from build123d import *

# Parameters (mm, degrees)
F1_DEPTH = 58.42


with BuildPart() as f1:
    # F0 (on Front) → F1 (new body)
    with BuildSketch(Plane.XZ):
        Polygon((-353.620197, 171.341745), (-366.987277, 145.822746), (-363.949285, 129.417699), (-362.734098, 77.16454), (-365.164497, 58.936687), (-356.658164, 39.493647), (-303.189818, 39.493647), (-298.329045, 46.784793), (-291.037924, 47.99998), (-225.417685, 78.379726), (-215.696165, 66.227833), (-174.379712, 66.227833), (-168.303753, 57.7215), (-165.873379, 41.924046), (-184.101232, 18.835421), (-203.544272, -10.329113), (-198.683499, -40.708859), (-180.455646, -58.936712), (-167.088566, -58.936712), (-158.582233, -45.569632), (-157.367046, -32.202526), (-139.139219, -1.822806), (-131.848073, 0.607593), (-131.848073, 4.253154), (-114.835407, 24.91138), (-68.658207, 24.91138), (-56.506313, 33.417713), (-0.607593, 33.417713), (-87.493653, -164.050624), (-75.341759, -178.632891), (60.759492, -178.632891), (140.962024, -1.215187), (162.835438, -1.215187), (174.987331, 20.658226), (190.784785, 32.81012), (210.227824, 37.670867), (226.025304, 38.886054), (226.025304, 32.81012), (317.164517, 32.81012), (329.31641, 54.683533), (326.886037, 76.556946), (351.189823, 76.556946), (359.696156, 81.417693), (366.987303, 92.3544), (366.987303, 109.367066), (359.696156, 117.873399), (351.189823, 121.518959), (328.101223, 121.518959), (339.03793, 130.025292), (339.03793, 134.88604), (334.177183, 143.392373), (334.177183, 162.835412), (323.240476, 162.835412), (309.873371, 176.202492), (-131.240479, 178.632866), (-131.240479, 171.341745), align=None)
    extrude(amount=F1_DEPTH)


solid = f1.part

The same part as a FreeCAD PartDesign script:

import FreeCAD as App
import Part
import Sketcher
from FreeCAD import Vector
Q = App.Units.Quantity


def add_polygon(sketch, points):
    """Adds a closed chain of lines whose ends are joined by coincident constraints."""
    first, n = sketch.GeometryCount, len(points)
    for a, b in zip(points, points[1:] + points[:1]):
        sketch.addGeometry(Part.LineSegment(App.Vector(*a, 0), App.Vector(*b, 0)), False)
    for i in range(n):
        sketch.addConstraint(Sketcher.Constraint("Coincident", first + i, 2, first + (i + 1) % n, 1))

doc = App.newDocument("Part")
body = doc.addObject("PartDesign::Body", "Body")

# Sketch on XZ plane
sketch1 = body.newObject("Sketcher::SketchObject", "Sketch")
sketch1.AttachmentSupport = (doc.getObject("XZ_Plane"), [""])
sketch1.MapMode = "FlatFace"
add_polygon(sketch1, [(-353.620197, 171.341745), (-366.987277, 145.822746), (-363.949285, 129.417699), (-362.734098, 77.16454), (-365.164497, 58.936687), (-356.658164, 39.493647), (-303.189818, 39.493647), (-298.329045, 46.784793), (-291.037924, 47.99998), (-225.417685, 78.379726), (-215.696165, 66.227833), (-174.379712, 66.227833), (-168.303753, 57.7215), (-165.873379, 41.924046), (-184.101232, 18.835421), (-203.544272, -10.329113), (-198.683499, -40.708859), (-180.455646, -58.936712), (-167.088566, -58.936712), (-158.582233, -45.569632), (-157.367046, -32.202526), (-139.139219, -1.822806), (-131.848073, 0.607593), (-131.848073, 4.253154), (-114.835407, 24.91138), (-68.658207, 24.91138), (-56.506313, 33.417713), (-0.607593, 33.417713), (-87.493653, -164.050624), (-75.341759, -178.632891), (60.759492, -178.632891), (140.962024, -1.215187), (162.835438, -1.215187), (174.987331, 20.658226), (190.784785, 32.81012), (210.227824, 37.670867), (226.025304, 38.886054), (226.025304, 32.81012), (317.164517, 32.81012), (329.31641, 54.683533), (326.886037, 76.556946), (351.189823, 76.556946), (359.696156, 81.417693), (366.987303, 92.3544), (366.987303, 109.367066), (359.696156, 117.873399), (351.189823, 121.518959), (328.101223, 121.518959), (339.03793, 130.025292), (339.03793, 134.88604), (334.177183, 143.392373), (334.177183, 162.835412), (323.240476, 162.835412), (309.873371, 176.202492), (-131.240479, 178.632866), (-131.240479, 171.341745)])  # lines 0-55
sketch1.addConstraint([
    Sketcher.Constraint("Horizontal", 5),
    Sketcher.Constraint("Horizontal", 10),
    Sketcher.Constraint("Horizontal", 17),
    Sketcher.Constraint("Vertical", 22),
    Sketcher.Constraint("Horizontal", 24),
    Sketcher.Constraint("Horizontal", 26),
    Sketcher.Constraint("Horizontal", 29),
    Sketcher.Constraint("Horizontal", 31),
    Sketcher.Constraint("Vertical", 36),
    Sketcher.Constraint("Horizontal", 37),
    Sketcher.Constraint("Horizontal", 40),
    Sketcher.Constraint("Vertical", 43),
    Sketcher.Constraint("Horizontal", 46),
    Sketcher.Constraint("Vertical", 48),
    Sketcher.Constraint("Vertical", 50),
    Sketcher.Constraint("Horizontal", 51),
    Sketcher.Constraint("Vertical", 54),
    Sketcher.Constraint("Horizontal", 55),
    Sketcher.Constraint("Parallel", 6, 14),
    Sketcher.Constraint("Parallel", 32, 38),
    Sketcher.Constraint("Parallel", 14, 42),
    Sketcher.Constraint("Perpendicular", 41, 49),
    Sketcher.Constraint("Parallel", 16, 52),
    Sketcher.Constraint("Horizontal", 33, 2, 36, 2),
    Sketcher.Constraint("Vertical", 41, 2, 44, 2),
    Sketcher.Constraint("Vertical", 40, 2, 45, 2),
    Sketcher.Constraint("Equal", 32, 38),
    Sketcher.Constraint("Equal", 41, 49),
    Sketcher.Constraint("Angle", 16, Q("-45 deg")),
    Sketcher.Constraint("DistanceX", 24, 1, 24, 2, Q("1.818 in")),
    Sketcher.Constraint("DistanceX", 46, 2, 46, 1, Q("0.909 in")),
    Sketcher.Constraint("DistanceY", -1, 1, 42, 2, Q("3.636 in")),
    Sketcher.Constraint("DistanceX", 16, 2, 19, 2, Q("0.909 in")),
    Sketcher.Constraint("DistanceX", 30, 2, 34, 2, Q("2.727 in")),
    Sketcher.Constraint("DistanceY", 47, 2, 52, 2, Q("1.818 in")),
    Sketcher.Constraint("DistanceY", -1, 1, 11, 2, Q("2.2725 in")),
    Sketcher.Constraint("DistanceY", 30, 2, 26, 2, Q("1.3635 in")),
    Sketcher.Constraint("DistanceX", 12, 2, 53, 2, Q("1.3635 in")),
    Sketcher.Constraint("DistanceX", 3, 2, 55, 2, Q("0.4545 in")),
    Sketcher.Constraint("DistanceX", 17, 1, 17, 2, 13.36708),
    Sketcher.Constraint("DistanceX", 26, 1, 26, 2, 55.89872),
    Sketcher.Constraint("DistanceX", 29, 1, 29, 2, 136.101251),
    Sketcher.Constraint("DistanceX", 55, 2, 55, 1, 222.379718),
    Sketcher.Constraint("DistanceY", 22, 1, 22, 2, 3.645561),
    Sketcher.Constraint("DistanceY", 48, 1, 48, 2, 4.860748),
    Sketcher.Constraint("DistanceY", 50, 1, 50, 2, 19.443039),
    Sketcher.Constraint("DistanceY", 54, 2, 54, 1, 7.291121),
    Sketcher.Constraint("DistanceY", -1, 1, 1, 2, 129.417699),
    Sketcher.Constraint("DistanceX", 2, 2, -1, 1, 362.734098),
    Sketcher.Constraint("DistanceX", 15, 2, -1, 1, 198.683499),
    Sketcher.Constraint("DistanceY", -1, 1, 44, 2, 117.873399),
    Sketcher.Constraint("DistanceX", 3, 2, 2, 2, 2.430399),
    Sketcher.Constraint("DistanceY", 4, 2, 0, 2, 106.329099),
    Sketcher.Constraint("DistanceX", 4, 2, 9, 2, 140.961999),
    Sketcher.Constraint("DistanceY", 16, 2, 14, 2, 48.607599),
    Sketcher.Constraint("DistanceX", 13, 2, 18, 2, 25.518999),
    Sketcher.Constraint("DistanceY", 20, 2, 21, 2, 2.430399),
    Sketcher.Constraint("DistanceY", 27, 2, 19, 2, 131.848098),
    Sketcher.Constraint("DistanceX", 24, 2, 29, 2, 129.417699),
    Sketcher.Constraint("DistanceX", 25, 2, 33, 2, 247.291098),
    Sketcher.Constraint("DistanceY", 12, 2, 54, 2, 129.417699),
    Sketcher.Constraint("DistanceY", 0, 2, 55, 2, 25.518999),
    Sketcher.Constraint("Distance", 6, 8.762872),
    Sketcher.Constraint("Distance", 9, 15.56202),
    Sketcher.Constraint("Distance", 13, 29.416649),
    Sketcher.Constraint("Distance", 15, 30.766152),
    Sketcher.Constraint("Distance", 21, 7.685548),
    Sketcher.Constraint("Distance", 25, 14.833281),
    Sketcher.Constraint("Distance", 27, 215.738109),
    Sketcher.Constraint("Distance", 28, 18.981861),
    Sketcher.Constraint("Distance", 30, 194.70359),
    Sketcher.Constraint("Distance", 33, 19.930582),
    Sketcher.Constraint("Distance", 35, 15.844149),
    Sketcher.Constraint("Distance", 39, 22.008019),
    Sketcher.Constraint("Distance", 41, 9.797171),
    Sketcher.Constraint("Distance", 42, 13.144291),
    Sketcher.Constraint("Distance", 45, 9.25461),
    Sketcher.Constraint("DistanceX", 5, 1, 5, 2, 53.468346),
    Sketcher.Constraint("DistanceX", 10, 1, 10, 2, 41.316453),
    Sketcher.Constraint("DistanceX", 31, 1, 31, 2, 21.873414),
    Sketcher.Constraint("DistanceX", 37, 1, 37, 2, 91.139213),
    Sketcher.Constraint("DistanceX", 40, 1, 40, 2, 24.303786),
    Sketcher.Constraint("DistanceX", 51, 2, 51, 1, 10.936707),
    Sketcher.Constraint("DistanceY", 36, 2, 36, 1, 6.075934),
    Sketcher.Constraint("DistanceY", 43, 1, 43, 2, 17.012666),
    Sketcher.Constraint("DistanceY", -1, 1, 2, 2, 77.16454),
    Sketcher.Constraint("DistanceX", 5, 2, -1, 1, 303.189818),
    Sketcher.Constraint("DistanceY", -1, 1, 7, 2, 47.99998),
    Sketcher.Constraint("DistanceY", -1, 1, 13, 2, 18.835421),
    Sketcher.Constraint("DistanceX", 14, 2, -1, 1, 203.544272),
    Sketcher.Constraint("DistanceY", 15, 2, -1, 1, 40.708859),
    Sketcher.Constraint("DistanceX", 20, 2, -1, 1, 139.139219),
    Sketcher.Constraint("DistanceY", -1, 1, 23, 2, 24.91138),
    Sketcher.Constraint("DistanceX", 28, 2, -1, 1, 75.341759),
    Sketcher.Constraint("DistanceY", 28, 2, -1, 1, 178.632891),
    Sketcher.Constraint("DistanceX", -1, 1, 31, 2, 162.835438),
    Sketcher.Constraint("DistanceX", -1, 1, 32, 2, 174.987331),
    Sketcher.Constraint("DistanceY", -1, 1, 33, 2, 32.81012),
    Sketcher.Constraint("DistanceX", -1, 1, 38, 2, 329.31641),
    Sketcher.Constraint("DistanceY", -1, 1, 45, 2, 121.518959),
    Sketcher.Constraint("DistanceX", -1, 1, 47, 2, 339.03793),
    Sketcher.Constraint("DistanceY", -1, 1, 47, 2, 130.025292),
    Sketcher.Constraint("DistanceX", 0, 2, 2, 2, 4.253179),
    Sketcher.Constraint("DistanceY", 3, 2, 1, 2, 70.481012),
    Sketcher.Constraint("DistanceY", 3, 2, 0, 2, 86.886059),
    Sketcher.Constraint("DistanceX", 1, 2, 4, 2, 7.291121),
    Sketcher.Constraint("DistanceX", 6, 2, 7, 2, 7.291121),
    Sketcher.Constraint("DistanceX", 7, 2, 8, 2, 65.620239),
    Sketcher.Constraint("DistanceY", 5, 2, 8, 2, 38.886079),
    Sketcher.Constraint("DistanceX", 10, 2, 11, 2, 6.075959),
    Sketcher.Constraint("DistanceY", 17, 2, 18, 2, 13.36708),
    Sketcher.Constraint("DistanceY", 19, 2, 20, 2, 30.37972),
])
pad1 = body.newObject("PartDesign::Pad", "Pad")
pad1.Profile = sketch1
pad1.Length = Q("2.3 in")

doc.recompute()
